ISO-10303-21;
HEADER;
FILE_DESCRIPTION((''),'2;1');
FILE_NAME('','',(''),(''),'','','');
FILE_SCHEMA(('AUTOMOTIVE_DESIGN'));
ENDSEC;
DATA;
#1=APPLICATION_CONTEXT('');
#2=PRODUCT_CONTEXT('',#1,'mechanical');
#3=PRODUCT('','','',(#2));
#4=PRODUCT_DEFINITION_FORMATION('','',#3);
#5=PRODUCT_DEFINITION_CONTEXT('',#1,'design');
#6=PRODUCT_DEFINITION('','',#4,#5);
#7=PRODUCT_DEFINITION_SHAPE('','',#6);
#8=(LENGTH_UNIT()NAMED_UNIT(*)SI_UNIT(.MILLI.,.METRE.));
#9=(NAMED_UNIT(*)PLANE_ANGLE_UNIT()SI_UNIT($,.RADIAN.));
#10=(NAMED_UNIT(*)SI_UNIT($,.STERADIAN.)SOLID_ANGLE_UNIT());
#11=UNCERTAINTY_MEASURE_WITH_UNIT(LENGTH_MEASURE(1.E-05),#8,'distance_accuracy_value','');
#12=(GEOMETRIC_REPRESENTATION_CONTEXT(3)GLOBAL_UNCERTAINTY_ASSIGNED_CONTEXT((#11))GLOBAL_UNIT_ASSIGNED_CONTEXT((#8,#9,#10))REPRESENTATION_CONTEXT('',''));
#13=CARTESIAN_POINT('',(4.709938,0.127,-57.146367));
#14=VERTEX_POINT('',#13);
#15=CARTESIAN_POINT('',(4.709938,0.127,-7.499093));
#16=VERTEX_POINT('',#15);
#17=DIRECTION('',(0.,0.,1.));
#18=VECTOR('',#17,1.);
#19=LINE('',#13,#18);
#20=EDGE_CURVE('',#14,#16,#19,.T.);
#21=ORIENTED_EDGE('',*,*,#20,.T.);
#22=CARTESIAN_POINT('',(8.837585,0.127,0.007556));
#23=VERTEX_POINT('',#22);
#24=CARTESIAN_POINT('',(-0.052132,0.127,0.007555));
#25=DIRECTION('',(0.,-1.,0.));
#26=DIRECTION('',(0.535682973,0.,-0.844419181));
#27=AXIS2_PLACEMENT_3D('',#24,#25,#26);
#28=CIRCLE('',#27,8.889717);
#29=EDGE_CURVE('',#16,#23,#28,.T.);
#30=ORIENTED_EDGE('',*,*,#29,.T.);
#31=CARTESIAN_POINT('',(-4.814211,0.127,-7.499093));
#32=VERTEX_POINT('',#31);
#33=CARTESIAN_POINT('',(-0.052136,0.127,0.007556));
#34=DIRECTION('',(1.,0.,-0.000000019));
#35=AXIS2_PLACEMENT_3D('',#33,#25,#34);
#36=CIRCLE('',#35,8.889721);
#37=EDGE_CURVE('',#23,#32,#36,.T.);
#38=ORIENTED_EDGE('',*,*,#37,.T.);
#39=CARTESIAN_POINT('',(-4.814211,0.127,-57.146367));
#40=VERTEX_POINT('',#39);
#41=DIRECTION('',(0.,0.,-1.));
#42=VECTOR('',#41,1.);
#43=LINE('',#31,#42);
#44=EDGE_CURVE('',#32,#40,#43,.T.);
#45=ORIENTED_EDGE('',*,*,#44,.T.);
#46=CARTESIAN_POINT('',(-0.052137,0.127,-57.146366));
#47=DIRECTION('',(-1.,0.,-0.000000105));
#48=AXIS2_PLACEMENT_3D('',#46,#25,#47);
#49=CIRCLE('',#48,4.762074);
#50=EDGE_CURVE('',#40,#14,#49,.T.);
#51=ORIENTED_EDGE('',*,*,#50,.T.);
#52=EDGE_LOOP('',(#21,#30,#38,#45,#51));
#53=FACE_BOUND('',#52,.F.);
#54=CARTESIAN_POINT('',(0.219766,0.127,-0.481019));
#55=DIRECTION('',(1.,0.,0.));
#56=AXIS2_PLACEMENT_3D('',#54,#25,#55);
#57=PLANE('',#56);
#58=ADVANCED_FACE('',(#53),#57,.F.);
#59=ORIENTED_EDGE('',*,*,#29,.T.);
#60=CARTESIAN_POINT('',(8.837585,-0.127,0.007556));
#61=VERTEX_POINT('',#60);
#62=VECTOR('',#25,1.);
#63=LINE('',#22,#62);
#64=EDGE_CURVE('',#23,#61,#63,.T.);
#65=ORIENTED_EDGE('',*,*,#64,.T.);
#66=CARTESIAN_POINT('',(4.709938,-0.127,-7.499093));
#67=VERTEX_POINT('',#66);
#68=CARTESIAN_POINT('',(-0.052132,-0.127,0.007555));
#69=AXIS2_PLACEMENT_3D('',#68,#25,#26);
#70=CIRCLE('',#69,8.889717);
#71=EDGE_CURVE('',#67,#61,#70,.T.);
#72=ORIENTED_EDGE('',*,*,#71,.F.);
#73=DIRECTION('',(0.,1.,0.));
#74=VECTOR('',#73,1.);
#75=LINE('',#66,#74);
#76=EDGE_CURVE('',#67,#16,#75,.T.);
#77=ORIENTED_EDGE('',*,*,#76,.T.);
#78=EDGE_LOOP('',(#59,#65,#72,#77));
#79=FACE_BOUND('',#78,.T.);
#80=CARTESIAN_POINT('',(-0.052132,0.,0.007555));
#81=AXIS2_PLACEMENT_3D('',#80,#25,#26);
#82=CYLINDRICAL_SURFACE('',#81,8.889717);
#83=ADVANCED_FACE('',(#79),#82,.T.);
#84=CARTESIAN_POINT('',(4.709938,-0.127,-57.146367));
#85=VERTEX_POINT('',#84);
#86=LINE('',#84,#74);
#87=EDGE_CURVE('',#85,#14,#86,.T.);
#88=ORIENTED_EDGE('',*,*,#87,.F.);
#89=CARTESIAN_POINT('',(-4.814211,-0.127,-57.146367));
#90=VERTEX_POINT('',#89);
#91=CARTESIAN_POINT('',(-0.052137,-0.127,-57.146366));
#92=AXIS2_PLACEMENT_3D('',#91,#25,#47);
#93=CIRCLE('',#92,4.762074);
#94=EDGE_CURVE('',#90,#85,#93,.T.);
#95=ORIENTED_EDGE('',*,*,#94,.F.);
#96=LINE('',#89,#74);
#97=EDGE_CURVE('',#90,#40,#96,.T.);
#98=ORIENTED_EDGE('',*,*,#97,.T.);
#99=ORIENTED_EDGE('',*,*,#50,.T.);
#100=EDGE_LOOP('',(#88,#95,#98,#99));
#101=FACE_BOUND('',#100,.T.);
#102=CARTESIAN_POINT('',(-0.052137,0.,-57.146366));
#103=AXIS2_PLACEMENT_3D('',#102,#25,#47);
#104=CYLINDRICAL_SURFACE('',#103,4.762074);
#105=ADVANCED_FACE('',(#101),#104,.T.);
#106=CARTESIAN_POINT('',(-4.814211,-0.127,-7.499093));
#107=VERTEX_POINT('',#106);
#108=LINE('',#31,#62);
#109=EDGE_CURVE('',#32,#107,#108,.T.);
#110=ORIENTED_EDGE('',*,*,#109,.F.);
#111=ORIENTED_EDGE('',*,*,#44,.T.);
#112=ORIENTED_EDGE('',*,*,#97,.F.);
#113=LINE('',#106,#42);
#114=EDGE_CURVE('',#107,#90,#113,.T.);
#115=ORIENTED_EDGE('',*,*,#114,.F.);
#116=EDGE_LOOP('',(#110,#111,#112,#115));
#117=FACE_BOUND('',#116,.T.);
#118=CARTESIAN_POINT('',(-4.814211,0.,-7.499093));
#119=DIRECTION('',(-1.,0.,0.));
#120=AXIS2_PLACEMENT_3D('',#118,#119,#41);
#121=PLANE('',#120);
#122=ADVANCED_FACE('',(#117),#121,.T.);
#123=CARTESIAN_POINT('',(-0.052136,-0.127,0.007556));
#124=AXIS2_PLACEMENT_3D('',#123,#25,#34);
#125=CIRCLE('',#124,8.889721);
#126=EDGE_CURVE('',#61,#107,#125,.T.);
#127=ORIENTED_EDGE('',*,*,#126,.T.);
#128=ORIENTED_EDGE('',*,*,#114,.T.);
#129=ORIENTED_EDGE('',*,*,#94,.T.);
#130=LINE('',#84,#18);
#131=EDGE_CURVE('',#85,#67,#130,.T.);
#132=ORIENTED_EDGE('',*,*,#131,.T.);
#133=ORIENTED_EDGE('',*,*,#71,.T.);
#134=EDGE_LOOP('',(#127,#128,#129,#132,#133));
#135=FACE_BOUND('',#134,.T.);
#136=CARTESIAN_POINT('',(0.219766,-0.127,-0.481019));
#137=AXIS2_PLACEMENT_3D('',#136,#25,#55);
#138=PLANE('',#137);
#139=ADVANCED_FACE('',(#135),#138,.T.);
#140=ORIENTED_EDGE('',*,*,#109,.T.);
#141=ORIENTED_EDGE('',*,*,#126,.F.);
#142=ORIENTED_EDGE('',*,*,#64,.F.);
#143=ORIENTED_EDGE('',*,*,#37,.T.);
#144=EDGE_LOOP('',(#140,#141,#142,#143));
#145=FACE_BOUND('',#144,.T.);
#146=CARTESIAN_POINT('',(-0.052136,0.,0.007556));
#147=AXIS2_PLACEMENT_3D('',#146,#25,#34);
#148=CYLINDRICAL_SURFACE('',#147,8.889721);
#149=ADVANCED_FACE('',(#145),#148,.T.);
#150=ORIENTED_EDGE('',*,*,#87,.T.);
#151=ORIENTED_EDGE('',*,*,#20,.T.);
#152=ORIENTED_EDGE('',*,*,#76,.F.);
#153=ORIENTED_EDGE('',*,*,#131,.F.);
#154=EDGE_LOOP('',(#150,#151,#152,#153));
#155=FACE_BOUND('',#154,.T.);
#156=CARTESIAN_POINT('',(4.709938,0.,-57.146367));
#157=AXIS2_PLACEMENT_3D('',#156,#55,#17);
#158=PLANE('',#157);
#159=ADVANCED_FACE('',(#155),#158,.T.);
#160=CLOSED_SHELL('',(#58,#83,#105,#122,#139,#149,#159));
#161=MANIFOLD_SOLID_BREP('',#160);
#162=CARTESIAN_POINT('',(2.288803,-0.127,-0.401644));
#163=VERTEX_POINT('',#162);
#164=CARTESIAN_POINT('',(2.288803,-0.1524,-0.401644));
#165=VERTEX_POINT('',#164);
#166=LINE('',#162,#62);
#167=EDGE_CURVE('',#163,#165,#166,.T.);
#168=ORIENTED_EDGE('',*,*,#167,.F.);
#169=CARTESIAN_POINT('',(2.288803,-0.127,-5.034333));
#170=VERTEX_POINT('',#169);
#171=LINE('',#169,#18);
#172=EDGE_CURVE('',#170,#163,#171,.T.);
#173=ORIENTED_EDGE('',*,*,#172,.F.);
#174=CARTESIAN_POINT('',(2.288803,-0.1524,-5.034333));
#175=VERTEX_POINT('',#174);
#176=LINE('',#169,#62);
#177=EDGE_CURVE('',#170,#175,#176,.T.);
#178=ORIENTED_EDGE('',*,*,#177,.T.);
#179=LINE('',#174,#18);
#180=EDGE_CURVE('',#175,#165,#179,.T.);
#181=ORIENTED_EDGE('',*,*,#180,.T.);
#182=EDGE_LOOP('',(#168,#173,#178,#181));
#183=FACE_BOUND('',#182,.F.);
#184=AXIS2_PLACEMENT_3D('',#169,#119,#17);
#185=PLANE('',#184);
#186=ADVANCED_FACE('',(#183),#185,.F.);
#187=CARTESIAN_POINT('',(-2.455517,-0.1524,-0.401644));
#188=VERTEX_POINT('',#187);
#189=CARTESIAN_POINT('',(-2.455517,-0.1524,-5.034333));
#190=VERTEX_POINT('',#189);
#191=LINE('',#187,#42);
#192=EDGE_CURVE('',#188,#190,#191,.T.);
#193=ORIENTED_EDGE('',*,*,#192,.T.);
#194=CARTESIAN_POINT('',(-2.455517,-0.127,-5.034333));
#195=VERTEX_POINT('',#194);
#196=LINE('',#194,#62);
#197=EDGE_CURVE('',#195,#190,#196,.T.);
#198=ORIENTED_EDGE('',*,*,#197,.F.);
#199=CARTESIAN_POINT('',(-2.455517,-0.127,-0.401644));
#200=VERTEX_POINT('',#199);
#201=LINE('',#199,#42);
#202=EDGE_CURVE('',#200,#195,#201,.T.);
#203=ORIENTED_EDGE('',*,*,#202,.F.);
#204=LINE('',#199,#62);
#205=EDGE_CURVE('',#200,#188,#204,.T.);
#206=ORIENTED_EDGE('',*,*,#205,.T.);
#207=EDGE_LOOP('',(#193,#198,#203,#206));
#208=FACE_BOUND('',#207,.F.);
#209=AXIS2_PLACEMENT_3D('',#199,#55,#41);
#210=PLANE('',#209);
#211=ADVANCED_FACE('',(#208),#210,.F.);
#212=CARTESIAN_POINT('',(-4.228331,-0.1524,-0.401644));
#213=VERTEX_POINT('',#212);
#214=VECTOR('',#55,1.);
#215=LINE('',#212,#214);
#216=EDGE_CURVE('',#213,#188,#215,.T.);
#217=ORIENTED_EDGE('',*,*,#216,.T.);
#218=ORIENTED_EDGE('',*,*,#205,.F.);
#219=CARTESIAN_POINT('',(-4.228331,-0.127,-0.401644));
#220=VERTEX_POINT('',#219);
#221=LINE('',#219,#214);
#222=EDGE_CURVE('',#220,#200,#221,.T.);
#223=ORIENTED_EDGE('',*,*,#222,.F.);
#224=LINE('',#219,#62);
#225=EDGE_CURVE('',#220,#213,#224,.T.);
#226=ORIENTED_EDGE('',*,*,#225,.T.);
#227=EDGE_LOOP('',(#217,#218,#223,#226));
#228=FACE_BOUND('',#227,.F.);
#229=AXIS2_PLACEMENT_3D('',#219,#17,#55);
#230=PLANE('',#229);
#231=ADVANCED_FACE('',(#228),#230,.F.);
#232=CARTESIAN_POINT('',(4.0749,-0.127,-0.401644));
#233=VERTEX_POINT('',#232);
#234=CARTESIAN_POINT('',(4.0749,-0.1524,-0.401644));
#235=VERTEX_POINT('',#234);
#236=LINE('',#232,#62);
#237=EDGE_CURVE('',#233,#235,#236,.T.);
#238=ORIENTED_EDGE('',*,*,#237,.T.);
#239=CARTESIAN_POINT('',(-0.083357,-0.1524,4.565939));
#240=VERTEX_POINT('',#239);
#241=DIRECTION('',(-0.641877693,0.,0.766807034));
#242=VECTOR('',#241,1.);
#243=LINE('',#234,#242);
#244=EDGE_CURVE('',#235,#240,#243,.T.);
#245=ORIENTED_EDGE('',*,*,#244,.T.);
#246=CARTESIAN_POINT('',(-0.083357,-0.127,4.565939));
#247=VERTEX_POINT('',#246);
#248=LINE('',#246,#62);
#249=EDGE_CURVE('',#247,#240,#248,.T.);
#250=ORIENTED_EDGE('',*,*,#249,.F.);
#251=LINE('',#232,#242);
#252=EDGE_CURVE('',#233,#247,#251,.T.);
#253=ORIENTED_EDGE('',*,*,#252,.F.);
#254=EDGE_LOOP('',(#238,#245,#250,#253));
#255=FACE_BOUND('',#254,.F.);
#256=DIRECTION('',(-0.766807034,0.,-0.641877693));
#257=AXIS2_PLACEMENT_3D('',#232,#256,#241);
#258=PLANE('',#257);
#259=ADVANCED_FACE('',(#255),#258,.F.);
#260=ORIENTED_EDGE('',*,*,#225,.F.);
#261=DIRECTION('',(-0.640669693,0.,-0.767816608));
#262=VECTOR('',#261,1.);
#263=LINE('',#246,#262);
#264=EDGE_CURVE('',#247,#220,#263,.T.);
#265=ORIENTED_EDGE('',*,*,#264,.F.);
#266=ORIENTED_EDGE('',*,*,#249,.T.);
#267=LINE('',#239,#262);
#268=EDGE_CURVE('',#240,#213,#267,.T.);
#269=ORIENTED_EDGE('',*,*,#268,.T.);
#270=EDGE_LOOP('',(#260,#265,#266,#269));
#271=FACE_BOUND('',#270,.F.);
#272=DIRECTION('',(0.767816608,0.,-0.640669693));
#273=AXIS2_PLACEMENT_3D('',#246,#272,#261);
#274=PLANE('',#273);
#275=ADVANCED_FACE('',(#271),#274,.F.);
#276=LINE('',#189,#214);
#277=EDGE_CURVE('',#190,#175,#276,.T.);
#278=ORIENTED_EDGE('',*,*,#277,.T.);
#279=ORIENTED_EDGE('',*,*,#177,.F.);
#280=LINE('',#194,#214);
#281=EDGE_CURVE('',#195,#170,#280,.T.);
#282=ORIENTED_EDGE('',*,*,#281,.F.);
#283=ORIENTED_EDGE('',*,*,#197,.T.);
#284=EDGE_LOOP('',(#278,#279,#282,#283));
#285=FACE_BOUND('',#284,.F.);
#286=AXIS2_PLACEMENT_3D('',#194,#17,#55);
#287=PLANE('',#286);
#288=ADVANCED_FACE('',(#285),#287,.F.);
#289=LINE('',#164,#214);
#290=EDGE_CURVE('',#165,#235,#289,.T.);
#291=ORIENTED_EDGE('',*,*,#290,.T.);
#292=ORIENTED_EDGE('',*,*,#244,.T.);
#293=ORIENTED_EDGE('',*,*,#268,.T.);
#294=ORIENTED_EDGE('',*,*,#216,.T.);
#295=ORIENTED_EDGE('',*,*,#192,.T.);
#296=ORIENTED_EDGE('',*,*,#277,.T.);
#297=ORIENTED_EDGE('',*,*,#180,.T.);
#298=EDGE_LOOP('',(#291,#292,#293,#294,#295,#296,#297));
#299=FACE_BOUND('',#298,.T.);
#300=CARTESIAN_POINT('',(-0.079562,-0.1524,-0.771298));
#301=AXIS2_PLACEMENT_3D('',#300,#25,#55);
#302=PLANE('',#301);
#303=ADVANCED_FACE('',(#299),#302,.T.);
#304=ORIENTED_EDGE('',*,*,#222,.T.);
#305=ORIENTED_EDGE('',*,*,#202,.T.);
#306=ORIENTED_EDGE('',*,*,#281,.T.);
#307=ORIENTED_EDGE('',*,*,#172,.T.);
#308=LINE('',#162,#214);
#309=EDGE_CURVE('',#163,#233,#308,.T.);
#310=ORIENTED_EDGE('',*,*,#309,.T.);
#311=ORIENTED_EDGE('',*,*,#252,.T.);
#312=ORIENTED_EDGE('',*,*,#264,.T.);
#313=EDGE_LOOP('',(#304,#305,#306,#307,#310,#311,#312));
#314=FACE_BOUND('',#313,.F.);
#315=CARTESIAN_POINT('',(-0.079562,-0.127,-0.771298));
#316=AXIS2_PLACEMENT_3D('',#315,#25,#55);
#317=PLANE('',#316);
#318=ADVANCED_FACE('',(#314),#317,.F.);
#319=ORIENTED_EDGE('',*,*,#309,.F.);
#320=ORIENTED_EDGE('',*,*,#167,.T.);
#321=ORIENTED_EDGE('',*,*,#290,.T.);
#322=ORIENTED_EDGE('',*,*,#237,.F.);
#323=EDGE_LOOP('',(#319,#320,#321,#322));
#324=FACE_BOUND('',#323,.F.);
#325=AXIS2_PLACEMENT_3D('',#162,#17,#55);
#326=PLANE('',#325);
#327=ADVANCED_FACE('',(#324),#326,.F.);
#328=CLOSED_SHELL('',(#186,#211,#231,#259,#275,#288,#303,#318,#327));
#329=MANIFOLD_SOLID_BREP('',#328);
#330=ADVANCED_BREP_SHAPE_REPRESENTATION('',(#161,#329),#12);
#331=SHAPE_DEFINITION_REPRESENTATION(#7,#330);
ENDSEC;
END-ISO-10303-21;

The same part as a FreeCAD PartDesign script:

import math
import FreeCAD as App
import Part
import Sketcher
Q = App.Units.Quantity

doc = App.newDocument("Part")
params = doc.addObject("Spreadsheet::Sheet", "Params")
for row, (alias, value) in enumerate([
    ("pad1_length", "0.01 in"),
    ("pad2_length", "0.001 in"),
], start=1):
    params.set(f"A{row}", alias)
    params.set(f"B{row}", "=" + value)
    params.setAlias(f"B{row}", alias)

body = doc.addObject("PartDesign::Body", "Body")

# Sketch on XZ plane
sketch1 = body.newObject("Sketcher::SketchObject", "Sketch")
sketch1.AttachmentSupport = (doc.getObject("XZ_Plane"), [""])
sketch1.MapMode = "FlatFace"
sketch1.addGeometry(Part.ArcOfCircle(Part.Circle(App.Vector(-0.1, 0, 0), App.Vector(0, 0, 1), 8.9), math.radians(-58), math.radians(0)), False)
sketch1.addGeometry(Part.ArcOfCircle(Part.Circle(App.Vector(-0.1, 0, 0), App.Vector(0, 0, 1), 8.9), math.radians(0), math.radians(238)), False)
sketch1.addGeometry(Part.LineSegment(App.Vector(-4.8, -7.5, 0), App.Vector(-4.8, -57.1, 0)), False)
sketch1.addGeometry(Part.ArcOfCircle(Part.Circle(App.Vector(-0.1, -57.1, 0), App.Vector(0, 0, 1), 4.8), math.radians(-180), math.radians(0)), False)
sketch1.addGeometry(Part.LineSegment(App.Vector(4.7, -57.1, 0), App.Vector(4.7, -7.5, 0)), False)
sketch1.addConstraint(Sketcher.Constraint("Tangent", 0, 2, 1, 1))
sketch1.addConstraint(Sketcher.Constraint("Coincident", 1, 2, 2, 1))
sketch1.addConstraint(Sketcher.Constraint("Tangent", 2, 2, 3, 1))
sketch1.addConstraint(Sketcher.Constraint("Tangent", 3, 2, 4, 1))
sketch1.addConstraint(Sketcher.Constraint("Coincident", 4, 2, 0, 1))
sketch1.addConstraint(Sketcher.Constraint("Vertical", 2))
sketch1.addConstraint(Sketcher.Constraint("Vertical", 4))
sketch1.addConstraint(Sketcher.Constraint("Horizontal", 1, 3, 0, 2))
sketch1.addConstraint(Sketcher.Constraint("Horizontal", 1, 2, 4, 2))
sketch1.addConstraint(Sketcher.Constraint("Vertical", 1, 3, 3, 3))
sketch1.addConstraint(Sketcher.Constraint("Radius", 1, Q("8.889721 mm")))
sketch1.addConstraint(Sketcher.Constraint("Radius", 3, Q("4.762074 mm")))
sketch1.addConstraint(Sketcher.Constraint("DistanceY", 2, 2, 2, 1, Q("49.647274 mm")))
sketch1.addConstraint(Sketcher.Constraint("DistanceX", 1, 2, -1, 1, Q("4.814211 mm")))
sketch1.addConstraint(Sketcher.Constraint("DistanceY", -1, 1, 0, 3, Q("0.007555 mm")))
pad1 = body.newObject("PartDesign::Pad", "Pad")
pad1.Profile = sketch1
pad1.setExpression("Length", "Params.pad1_length")
pad1.Midplane = True
body2 = doc.addObject("PartDesign::Body", "Body001")

# Sketch on XZ plane
sketch2 = body2.newObject("Sketcher::SketchObject", "Sketch001")
sketch2.AttachmentSupport = (doc.getObject("XZ_Plane001"), [""])
sketch2.MapMode = "FlatFace"
sketch2.AttachmentOffset = App.Placement(App.Vector(0, 0, 0.005 * 25.4), App.Rotation())
sketch2.addGeometry(Part.LineSegment(App.Vector(-2.5, -0.4, 0), App.Vector(-2.5, -5, 0)), False)
sketch2.addGeometry(Part.LineSegment(App.Vector(-2.5, -5, 0), App.Vector(2.3, -5, 0)), False)
sketch2.addGeometry(Part.LineSegment(App.Vector(2.3, -5, 0), App.Vector(2.3, -0.4, 0)), False)
sketch2.addGeometry(Part.LineSegment(App.Vector(2.3, -0.4, 0), App.Vector(4.1, -0.4, 0)), False)
sketch2.addGeometry(Part.LineSegment(App.Vector(4.1, -0.4, 0), App.Vector(-0.1, 4.6, 0)), False)
sketch2.addGeometry(Part.LineSegment(App.Vector(-0.1, 4.6, 0), App.Vector(-4.2, -0.4, 0)), False)
sketch2.addGeometry(Part.LineSegment(App.Vector(-4.2, -0.4, 0), App.Vector(-2.5, -0.4, 0)), False)
sketch2.addConstraint(Sketcher.Constraint("Coincident", 0, 2, 1, 1))
sketch2.addConstraint(Sketcher.Constraint("Coincident", 1, 2, 2, 1))
sketch2.addConstraint(Sketcher.Constraint("Coincident", 2, 2, 3, 1))
sketch2.addConstraint(Sketcher.Constraint("Coincident", 3, 2, 4, 1))
sketch2.addConstraint(Sketcher.Constraint("Coincident", 4, 2, 5, 1))
sketch2.addConstraint(Sketcher.Constraint("Coincident", 5, 2, 6, 1))
sketch2.addConstraint(Sketcher.Constraint("Coincident", 6, 2, 0, 1))
sketch2.addConstraint(Sketcher.Constraint("Vertical", 0))
sketch2.addConstraint(Sketcher.Constraint("Horizontal", 1))
sketch2.addConstraint(Sketcher.Constraint("Vertical", 2))
sketch2.addConstraint(Sketcher.Constraint("Horizontal", 3))
sketch2.addConstraint(Sketcher.Constraint("Horizontal", 6))
sketch2.addConstraint(Sketcher.Constraint("Horizontal", 3, 2, 5, 2))
sketch2.addConstraint(Sketcher.Constraint("DistanceX", 1, 1, 1, 2, Q("4.74432 mm")))
sketch2.addConstraint(Sketcher.Constraint("DistanceY", 0, 2, 0, 1, Q("4.632689 mm")))
sketch2.addConstraint(Sketcher.Constraint("DistanceX", -1, 1, 3, 2, Q("4.0749 mm")))
sketch2.addConstraint(Sketcher.Constraint("Distance", 4, Q("6.47827 mm")))
sketch2.addConstraint(Sketcher.Constraint("Distance", 5, Q("6.469752 mm")))
sketch2.addConstraint(Sketcher.Constraint("DistanceX", 3, 1, 3, 2, Q("1.786097 mm")))
sketch2.addConstraint(Sketcher.Constraint("DistanceX", 6, 1, 6, 2, Q("1.772814 mm")))
sketch2.addConstraint(Sketcher.Constraint("DistanceY", -1, 1, 4, 2, Q("4.565939 mm")))
pad2 = body2.newObject("PartDesign::Pad", "Pad001")
pad2.Profile = sketch2
pad2.setExpression("Length", "Params.pad2_length")

doc.recompute()
